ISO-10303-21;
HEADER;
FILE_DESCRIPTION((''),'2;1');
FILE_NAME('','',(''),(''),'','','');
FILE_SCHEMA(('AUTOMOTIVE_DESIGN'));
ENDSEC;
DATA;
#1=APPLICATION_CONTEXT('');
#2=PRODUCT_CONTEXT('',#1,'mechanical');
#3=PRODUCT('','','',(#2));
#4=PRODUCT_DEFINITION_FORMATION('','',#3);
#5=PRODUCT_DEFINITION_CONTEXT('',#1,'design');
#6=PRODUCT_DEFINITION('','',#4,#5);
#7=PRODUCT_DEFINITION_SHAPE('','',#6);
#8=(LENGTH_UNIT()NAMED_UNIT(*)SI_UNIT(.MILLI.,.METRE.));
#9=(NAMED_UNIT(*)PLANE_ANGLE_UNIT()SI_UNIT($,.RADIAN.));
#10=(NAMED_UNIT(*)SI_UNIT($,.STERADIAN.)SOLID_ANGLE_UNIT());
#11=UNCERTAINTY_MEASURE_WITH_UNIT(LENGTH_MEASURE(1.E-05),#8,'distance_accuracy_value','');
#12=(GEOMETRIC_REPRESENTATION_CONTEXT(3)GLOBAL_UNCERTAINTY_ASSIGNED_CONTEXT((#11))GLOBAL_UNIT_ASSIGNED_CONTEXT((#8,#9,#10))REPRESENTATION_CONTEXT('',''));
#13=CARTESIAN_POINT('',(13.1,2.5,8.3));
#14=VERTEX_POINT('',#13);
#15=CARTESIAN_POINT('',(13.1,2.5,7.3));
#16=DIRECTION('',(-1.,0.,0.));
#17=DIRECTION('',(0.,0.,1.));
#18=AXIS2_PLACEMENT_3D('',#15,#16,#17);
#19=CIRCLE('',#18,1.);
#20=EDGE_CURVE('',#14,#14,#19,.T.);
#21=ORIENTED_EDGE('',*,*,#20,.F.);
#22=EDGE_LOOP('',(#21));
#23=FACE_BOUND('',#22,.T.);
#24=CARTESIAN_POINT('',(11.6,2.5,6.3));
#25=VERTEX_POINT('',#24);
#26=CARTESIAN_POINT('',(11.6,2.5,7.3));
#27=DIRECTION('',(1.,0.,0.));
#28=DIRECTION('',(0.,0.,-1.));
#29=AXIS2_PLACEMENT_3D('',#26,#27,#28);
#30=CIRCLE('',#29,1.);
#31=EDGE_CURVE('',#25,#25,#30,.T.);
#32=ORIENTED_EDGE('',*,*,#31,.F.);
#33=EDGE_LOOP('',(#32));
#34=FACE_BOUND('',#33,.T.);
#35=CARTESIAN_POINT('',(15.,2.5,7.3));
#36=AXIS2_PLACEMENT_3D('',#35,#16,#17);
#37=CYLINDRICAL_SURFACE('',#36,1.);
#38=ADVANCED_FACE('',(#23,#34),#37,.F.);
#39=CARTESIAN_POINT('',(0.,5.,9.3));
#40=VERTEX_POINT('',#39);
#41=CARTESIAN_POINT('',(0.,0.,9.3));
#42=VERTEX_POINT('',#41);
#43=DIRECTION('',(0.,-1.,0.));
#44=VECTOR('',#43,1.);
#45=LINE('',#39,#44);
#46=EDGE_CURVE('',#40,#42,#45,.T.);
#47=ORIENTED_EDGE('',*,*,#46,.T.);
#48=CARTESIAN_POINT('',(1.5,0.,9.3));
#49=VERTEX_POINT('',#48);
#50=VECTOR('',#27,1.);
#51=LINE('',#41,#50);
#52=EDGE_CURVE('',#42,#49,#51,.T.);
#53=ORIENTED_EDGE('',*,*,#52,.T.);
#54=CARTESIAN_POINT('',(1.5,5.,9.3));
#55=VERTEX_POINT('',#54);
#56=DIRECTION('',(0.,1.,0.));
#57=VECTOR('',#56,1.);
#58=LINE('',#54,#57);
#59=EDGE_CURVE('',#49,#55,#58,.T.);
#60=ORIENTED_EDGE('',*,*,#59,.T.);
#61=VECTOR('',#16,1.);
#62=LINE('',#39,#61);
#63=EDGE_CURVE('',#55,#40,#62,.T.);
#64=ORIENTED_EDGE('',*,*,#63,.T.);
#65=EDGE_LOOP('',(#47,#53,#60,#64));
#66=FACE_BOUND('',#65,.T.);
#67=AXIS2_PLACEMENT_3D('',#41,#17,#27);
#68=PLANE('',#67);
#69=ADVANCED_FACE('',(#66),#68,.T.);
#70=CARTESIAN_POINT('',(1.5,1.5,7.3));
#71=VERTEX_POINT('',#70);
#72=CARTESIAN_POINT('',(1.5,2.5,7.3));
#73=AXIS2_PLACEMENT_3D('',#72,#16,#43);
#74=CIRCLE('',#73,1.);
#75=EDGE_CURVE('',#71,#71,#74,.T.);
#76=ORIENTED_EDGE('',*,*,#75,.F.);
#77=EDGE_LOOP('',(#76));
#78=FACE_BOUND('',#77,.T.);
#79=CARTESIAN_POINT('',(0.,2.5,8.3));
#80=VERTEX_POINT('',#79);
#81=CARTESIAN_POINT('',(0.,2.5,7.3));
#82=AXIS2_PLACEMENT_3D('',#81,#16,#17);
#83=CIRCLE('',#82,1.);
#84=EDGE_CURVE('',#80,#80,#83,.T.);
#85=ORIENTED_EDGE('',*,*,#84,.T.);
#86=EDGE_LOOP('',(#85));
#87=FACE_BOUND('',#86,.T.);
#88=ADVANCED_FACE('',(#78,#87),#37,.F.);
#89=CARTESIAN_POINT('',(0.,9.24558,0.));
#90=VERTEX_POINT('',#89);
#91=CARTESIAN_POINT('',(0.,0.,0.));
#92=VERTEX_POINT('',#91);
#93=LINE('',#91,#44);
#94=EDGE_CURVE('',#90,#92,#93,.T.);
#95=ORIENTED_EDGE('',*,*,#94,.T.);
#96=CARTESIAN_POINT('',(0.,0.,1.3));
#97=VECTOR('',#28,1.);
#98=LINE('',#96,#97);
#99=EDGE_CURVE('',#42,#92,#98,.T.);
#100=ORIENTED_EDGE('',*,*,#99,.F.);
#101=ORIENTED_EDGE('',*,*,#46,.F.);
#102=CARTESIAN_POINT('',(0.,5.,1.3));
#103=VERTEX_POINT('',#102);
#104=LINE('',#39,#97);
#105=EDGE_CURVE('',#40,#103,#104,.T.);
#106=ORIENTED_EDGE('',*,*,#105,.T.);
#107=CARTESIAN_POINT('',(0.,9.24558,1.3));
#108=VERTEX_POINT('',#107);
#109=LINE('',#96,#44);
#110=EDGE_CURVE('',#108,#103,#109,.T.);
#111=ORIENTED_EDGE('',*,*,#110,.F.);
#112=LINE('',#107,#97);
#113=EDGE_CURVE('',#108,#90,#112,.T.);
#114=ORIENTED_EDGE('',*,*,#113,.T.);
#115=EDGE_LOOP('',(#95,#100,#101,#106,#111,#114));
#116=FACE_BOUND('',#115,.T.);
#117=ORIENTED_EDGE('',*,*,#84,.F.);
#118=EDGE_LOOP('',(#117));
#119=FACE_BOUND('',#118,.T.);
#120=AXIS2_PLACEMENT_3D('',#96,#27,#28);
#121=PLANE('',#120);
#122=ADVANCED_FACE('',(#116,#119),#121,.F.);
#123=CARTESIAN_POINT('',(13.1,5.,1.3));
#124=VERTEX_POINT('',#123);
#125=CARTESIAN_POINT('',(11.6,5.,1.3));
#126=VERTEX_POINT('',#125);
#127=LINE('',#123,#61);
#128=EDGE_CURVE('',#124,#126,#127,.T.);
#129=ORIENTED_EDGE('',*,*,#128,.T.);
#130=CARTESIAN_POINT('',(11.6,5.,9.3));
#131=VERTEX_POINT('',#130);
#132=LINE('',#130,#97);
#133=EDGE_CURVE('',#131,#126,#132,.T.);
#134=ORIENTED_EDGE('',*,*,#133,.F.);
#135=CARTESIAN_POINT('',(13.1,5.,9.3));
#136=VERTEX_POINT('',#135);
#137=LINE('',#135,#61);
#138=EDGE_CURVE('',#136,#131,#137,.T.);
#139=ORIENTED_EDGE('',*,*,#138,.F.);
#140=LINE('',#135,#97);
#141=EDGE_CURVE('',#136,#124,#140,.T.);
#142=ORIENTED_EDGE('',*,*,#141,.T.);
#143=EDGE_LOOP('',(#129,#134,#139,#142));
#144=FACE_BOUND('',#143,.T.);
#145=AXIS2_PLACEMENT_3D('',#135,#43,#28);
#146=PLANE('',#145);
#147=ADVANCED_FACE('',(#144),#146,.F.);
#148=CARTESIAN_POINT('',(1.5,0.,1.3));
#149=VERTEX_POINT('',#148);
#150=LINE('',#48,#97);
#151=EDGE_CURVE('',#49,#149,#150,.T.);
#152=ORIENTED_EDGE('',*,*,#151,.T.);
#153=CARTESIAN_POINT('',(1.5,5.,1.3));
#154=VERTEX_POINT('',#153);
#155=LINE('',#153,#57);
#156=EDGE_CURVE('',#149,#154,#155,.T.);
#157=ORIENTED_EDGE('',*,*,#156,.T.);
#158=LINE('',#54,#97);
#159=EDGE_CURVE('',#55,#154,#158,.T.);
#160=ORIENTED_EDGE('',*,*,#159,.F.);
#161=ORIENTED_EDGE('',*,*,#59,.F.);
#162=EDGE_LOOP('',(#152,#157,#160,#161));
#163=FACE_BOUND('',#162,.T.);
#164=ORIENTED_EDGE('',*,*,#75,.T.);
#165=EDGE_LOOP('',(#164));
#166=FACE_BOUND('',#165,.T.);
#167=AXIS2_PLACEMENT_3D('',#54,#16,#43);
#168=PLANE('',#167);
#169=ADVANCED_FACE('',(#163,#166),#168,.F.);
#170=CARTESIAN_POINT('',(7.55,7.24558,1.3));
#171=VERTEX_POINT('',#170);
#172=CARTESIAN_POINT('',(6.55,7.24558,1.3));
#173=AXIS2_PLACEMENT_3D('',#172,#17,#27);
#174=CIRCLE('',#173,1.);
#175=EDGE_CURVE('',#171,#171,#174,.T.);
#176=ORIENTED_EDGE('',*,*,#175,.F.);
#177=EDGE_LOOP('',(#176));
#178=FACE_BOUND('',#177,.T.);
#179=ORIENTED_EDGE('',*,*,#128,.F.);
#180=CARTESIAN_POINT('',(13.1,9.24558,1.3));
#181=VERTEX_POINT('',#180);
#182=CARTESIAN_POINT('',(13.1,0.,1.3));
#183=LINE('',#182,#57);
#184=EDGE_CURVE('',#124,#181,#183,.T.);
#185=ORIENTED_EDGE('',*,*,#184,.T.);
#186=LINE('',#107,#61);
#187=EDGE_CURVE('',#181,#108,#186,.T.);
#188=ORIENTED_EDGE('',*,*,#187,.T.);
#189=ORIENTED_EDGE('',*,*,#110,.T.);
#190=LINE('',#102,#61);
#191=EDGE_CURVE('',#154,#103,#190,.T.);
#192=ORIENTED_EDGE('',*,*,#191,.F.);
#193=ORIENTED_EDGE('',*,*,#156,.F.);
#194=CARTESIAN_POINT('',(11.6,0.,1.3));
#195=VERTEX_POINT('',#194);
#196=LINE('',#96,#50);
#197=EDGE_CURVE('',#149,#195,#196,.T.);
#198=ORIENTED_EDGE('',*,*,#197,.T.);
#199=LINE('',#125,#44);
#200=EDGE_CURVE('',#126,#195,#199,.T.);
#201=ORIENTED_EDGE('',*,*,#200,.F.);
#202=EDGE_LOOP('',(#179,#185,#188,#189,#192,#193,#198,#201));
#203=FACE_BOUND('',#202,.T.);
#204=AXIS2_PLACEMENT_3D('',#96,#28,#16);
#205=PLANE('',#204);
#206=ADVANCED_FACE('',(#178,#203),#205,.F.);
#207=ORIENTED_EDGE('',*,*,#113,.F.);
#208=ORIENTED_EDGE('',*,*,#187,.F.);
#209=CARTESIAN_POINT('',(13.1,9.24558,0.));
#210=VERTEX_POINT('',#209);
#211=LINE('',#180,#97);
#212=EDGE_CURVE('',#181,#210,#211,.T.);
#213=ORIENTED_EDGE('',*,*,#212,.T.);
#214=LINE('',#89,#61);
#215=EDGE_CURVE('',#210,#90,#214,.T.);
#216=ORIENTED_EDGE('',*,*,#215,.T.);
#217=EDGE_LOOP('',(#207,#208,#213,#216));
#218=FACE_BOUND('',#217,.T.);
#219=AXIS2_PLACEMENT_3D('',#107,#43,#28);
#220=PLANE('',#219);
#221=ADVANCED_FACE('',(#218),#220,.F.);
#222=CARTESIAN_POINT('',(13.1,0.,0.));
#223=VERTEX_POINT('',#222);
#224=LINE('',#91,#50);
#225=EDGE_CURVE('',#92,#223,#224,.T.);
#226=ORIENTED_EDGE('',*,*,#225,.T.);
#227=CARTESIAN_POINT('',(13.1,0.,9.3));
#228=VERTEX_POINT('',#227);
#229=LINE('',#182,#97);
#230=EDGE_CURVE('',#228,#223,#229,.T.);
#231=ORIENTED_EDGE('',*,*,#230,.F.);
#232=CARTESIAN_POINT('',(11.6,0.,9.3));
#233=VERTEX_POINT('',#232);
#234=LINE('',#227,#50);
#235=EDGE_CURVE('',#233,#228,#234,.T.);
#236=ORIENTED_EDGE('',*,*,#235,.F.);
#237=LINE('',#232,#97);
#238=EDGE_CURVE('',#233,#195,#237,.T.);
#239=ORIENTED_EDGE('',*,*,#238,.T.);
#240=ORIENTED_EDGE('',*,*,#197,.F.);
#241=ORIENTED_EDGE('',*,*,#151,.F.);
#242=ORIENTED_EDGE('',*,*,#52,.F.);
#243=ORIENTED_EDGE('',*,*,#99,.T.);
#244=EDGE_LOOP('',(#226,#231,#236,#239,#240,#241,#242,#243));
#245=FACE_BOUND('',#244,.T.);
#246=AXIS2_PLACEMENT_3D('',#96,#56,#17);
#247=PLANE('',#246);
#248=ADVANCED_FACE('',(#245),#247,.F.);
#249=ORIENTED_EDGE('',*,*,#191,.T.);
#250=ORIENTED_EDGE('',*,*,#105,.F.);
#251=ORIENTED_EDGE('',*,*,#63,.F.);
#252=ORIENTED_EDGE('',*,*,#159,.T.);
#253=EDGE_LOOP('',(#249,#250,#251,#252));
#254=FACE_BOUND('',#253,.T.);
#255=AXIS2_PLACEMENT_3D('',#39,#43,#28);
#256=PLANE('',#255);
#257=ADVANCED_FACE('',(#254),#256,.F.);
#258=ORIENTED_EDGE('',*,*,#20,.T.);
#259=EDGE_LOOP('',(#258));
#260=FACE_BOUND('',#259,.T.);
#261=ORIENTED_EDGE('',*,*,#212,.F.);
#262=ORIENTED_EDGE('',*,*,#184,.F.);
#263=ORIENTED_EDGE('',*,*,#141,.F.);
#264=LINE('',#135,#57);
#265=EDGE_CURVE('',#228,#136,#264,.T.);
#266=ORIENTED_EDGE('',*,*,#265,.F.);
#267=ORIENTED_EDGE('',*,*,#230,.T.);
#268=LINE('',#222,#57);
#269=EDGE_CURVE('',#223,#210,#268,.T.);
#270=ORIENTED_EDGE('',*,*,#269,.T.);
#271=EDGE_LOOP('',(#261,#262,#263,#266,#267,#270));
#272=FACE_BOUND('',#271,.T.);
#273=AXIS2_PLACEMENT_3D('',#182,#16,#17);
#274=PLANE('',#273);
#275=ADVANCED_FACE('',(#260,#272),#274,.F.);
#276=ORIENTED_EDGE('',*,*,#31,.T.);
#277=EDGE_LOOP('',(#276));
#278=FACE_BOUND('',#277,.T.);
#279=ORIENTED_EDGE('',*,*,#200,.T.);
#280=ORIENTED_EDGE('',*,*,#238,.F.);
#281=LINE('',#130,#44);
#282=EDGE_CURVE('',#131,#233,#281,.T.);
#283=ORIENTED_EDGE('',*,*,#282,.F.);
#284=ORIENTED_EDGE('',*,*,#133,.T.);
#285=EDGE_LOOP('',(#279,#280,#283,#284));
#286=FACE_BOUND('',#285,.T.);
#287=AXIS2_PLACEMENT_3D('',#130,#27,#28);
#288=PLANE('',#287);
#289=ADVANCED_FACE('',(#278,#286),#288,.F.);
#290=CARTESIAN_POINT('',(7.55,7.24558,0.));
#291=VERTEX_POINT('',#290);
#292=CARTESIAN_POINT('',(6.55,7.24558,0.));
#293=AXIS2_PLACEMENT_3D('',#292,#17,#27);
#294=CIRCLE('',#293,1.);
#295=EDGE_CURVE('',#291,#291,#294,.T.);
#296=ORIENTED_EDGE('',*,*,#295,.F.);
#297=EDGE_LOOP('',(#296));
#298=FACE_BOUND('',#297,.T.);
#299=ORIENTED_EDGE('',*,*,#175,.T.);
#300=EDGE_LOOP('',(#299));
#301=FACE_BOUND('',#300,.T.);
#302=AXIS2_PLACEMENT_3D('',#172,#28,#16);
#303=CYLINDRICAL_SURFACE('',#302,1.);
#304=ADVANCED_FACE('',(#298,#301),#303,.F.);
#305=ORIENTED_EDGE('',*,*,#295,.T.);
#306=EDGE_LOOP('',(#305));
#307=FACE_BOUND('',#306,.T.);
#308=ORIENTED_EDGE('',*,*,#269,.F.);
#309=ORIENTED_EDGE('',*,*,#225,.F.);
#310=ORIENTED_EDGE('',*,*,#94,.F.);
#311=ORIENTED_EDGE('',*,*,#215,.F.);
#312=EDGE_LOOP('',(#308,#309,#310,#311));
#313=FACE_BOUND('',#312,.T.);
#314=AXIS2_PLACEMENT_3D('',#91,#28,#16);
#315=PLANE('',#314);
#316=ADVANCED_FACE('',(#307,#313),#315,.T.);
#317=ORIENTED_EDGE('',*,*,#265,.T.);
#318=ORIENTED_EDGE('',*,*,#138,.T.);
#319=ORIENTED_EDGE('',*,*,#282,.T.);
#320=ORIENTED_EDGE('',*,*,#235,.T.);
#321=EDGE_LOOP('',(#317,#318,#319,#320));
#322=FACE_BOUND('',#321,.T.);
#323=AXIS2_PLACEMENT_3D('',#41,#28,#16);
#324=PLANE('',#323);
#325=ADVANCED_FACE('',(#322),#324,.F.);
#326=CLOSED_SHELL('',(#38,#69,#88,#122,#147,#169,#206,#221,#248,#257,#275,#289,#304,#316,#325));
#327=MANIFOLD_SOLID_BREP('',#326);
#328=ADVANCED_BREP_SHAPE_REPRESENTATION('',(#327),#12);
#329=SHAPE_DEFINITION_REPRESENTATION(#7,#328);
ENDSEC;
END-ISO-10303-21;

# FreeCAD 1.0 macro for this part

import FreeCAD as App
import Part
import Sketcher

doc = App.newDocument("Part")
body = doc.addObject("PartDesign::Body", "Body")

# Sketch on XY plane
sketch1 = doc.addObject("Sketcher::SketchObject", "Sketch")
body.addObject(sketch1)
sketch1.AttachmentSupport = (doc.XY_Plane, [""])
sketch1.MapMode = "FlatFace"
sketch1.addGeometry([
    Part.LineSegment(App.Vector(0, 9.2, 0), App.Vector(0, 0, 0)),  # 0
    Part.LineSegment(App.Vector(0, 0, 0), App.Vector(13.1, 0, 0)),  # 1
    Part.LineSegment(App.Vector(13.1, 0, 0), App.Vector(13.1, 9.2, 0)),  # 2
    Part.LineSegment(App.Vector(13.1, 9.2, 0), App.Vector(0, 9.2, 0)),  # 3
    Part.Circle(App.Vector(6.5, 7.2, 0), App.Vector(0, 0, 1), 1),  # 4
], False)
sketch1.addConstraint([
    Sketcher.Constraint("Coincident", 0, 2, 1, 1),
    Sketcher.Constraint("Coincident", 1, 2, 2, 1),
    Sketcher.Constraint("Coincident", 2, 2, 3, 1),
    Sketcher.Constraint("Coincident", 3, 2, 0, 1),
    Sketcher.Constraint("Vertical", 0),
    Sketcher.Constraint("Horizontal", 1),
    Sketcher.Constraint("Vertical", 2),
    Sketcher.Constraint("Horizontal", 3),
    Sketcher.Constraint("Coincident", 0, 2, -1, 1),
    Sketcher.Constraint("Diameter", 4, 2.0),
    Sketcher.Constraint("DistanceX", 1, 1, 1, 2, 13.1),
    Sketcher.Constraint("DistanceY", 4, 3, 2, 2, 2.0),
    Sketcher.Constraint("DistanceX", -1, 1, 4, 3, 6.55),
    Sketcher.Constraint("DistanceY", 0, 2, 0, 1, 9.24558),
])
pad1 = doc.addObject("PartDesign::Pad", "Pad")
body.addObject(pad1)
pad1.Profile = sketch1
pad1.Length = 1.3

# Sketch on XY plane
sketch2 = doc.addObject("Sketcher::SketchObject", "Sketch001")
body.addObject(sketch2)
sketch2.AttachmentSupport = (doc.XY_Plane, [""])
sketch2.MapMode = "FlatFace"
sketch2.AttachmentOffset = App.Placement(App.Vector(0, 0, 1.3), App.Rotation())
sketch2.addGeometry([
    Part.LineSegment(App.Vector(0, 5, 0), App.Vector(0, 0, 0)),  # 0
    Part.LineSegment(App.Vector(0, 0, 0), App.Vector(1.5, 0, 0)),  # 1
    Part.LineSegment(App.Vector(1.5, 0, 0), App.Vector(1.5, 5, 0)),  # 2
    Part.LineSegment(App.Vector(1.5, 5, 0), App.Vector(0, 5, 0)),  # 3
    Part.LineSegment(App.Vector(11.6, 5, 0), App.Vector(11.6, 0, 0)),  # 4
    Part.LineSegment(App.Vector(11.6, 0, 0), App.Vector(13.1, 0, 0)),  # 5
    Part.LineSegment(App.Vector(13.1, 0, 0), App.Vector(13.1, 5, 0)),  # 6
    Part.LineSegment(App.Vector(13.1, 5, 0), App.Vector(11.6, 5, 0)),  # 7
], False)
sketch2.addConstraint([
    Sketcher.Constraint("Coincident", 0, 2, 1, 1),
    Sketcher.Constraint("Coincident", 1, 2, 2, 1),
    Sketcher.Constraint("Coincident", 2, 2, 3, 1),
    Sketcher.Constraint("Coincident", 3, 2, 0, 1),
    Sketcher.Constraint("Coincident", 4, 2, 5, 1),
    Sketcher.Constraint("Coincident", 5, 2, 6, 1),
    Sketcher.Constraint("Coincident", 6, 2, 7, 1),
    Sketcher.Constraint("Coincident", 7, 2, 4, 1),
    Sketcher.Constraint("Vertical", 0),
    Sketcher.Constraint("Horizontal", 1),
    Sketcher.Constraint("Vertical", 2),
    Sketcher.Constraint("Horizontal", 3),
    Sketcher.Constraint("Vertical", 4),
    Sketcher.Constraint("Horizontal", 5),
    Sketcher.Constraint("Vertical", 6),
    Sketcher.Constraint("Horizontal", 7),
    Sketcher.Constraint("Coincident", 0, 2, -1, 1),
    Sketcher.Constraint("PointOnObject", 4, 2, -1),
    Sketcher.Constraint("Horizontal", 3, 2, 6, 2),
    Sketcher.Constraint("Equal", 3, 5),
    Sketcher.Constraint("DistanceY", 0, 2, 0, 1, 5.0),
    Sketcher.Constraint("DistanceX", 1, 1, 1, 2, 1.5),
    Sketcher.Constraint("DistanceX", -1, 1, 4, 2, 11.6),
])
pad2 = doc.addObject("PartDesign::Pad", "Pad001")
body.addObject(pad2)
pad2.Profile = sketch2
pad2.Length = 8

# Sketch on YZ plane
sketch3 = doc.addObject("Sketcher::SketchObject", "Sketch002")
body.addObject(sketch3)
sketch3.AttachmentSupport = (doc.YZ_Plane, [""])
sketch3.MapMode = "FlatFace"
sketch3.addGeometry(Part.Circle(App.Vector(2.5, 7.3, 0), App.Vector(0, 0, 1), 1), False)
sketch3.addConstraint([
    Sketcher.Constraint("Diameter", 0, 2.0),
    Sketcher.Constraint("DistanceX", -1, 1, 0, 3, 2.5),
    Sketcher.Constraint("DistanceY", -1, 1, 0, 3, 7.3),
])
pocket1 = doc.addObject("PartDesign::Pocket", "Pocket")
body.addObject(pocket1)
pocket1.Profile = sketch3
pocket1.Length = 15
pocket1.Reversed = True

doc.recompute()
